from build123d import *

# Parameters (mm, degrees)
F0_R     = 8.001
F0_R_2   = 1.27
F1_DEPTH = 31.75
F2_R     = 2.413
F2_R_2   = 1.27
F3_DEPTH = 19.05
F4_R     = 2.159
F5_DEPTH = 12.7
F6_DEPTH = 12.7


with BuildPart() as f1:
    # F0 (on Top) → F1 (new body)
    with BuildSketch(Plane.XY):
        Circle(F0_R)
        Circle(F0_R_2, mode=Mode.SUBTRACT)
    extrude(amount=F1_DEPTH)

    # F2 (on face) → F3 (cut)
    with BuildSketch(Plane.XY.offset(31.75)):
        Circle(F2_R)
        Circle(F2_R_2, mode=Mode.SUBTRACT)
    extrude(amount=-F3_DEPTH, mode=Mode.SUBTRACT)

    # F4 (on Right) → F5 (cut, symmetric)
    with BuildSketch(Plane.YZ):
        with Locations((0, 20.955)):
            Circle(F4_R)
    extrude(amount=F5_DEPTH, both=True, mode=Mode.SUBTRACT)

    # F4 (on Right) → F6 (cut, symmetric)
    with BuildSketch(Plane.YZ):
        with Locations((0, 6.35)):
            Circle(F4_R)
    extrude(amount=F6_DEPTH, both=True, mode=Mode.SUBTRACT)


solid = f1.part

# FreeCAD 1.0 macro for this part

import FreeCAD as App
import Part
import Sketcher

V = App.Vector
Q = App.Units.Quantity

doc = App.newDocument("Part")
body = doc.addObject("PartDesign::Body", "Body")

# Sketch on XY plane
sketch1 = doc.addObject("Sketcher::SketchObject", "Sketch")
body.addObject(sketch1)
sketch1.AttachmentSupport = (doc.XY_Plane, [""])
sketch1.MapMode = "FlatFace"
sketch1.addGeometry([
    Part.Circle(V(0, 0, 0), V(0, 0, 1), 8),
    Part.Circle(V(0, 0, 0), V(0, 0, 1), 1.3),
], False)
sketch1.addConstraint([
    Sketcher.Constraint("Coincident", 0, 3, -1, 1),
    Sketcher.Constraint("Coincident", 1, 3, -1, 1),
    Sketcher.Constraint("Diameter", 1, Q("0.1 in")),
    Sketcher.Constraint("Diameter", 0, Q("0.63 in")),
])
pad1 = doc.addObject("PartDesign::Pad", "Pad")
body.addObject(pad1)
pad1.Profile = sketch1
pad1.Length = Q("1.25 in")

# Sketch on XY plane
sketch2 = doc.addObject("Sketcher::SketchObject", "Sketch001")
body.addObject(sketch2)
sketch2.AttachmentSupport = (doc.XY_Plane, [""])
sketch2.MapMode = "FlatFace"
sketch2.AttachmentOffset = App.Placement(V(0, 0, 1.25 * 25.4), App.Rotation())
sketch2.addGeometry([
    Part.Circle(V(0, 0, 0), V(0, 0, 1), 2.4),
    Part.Circle(V(0, 0, 0), V(0, 0, 1), 1.3),
], False)
sketch2.addConstraint([
    Sketcher.Constraint("Coincident", 0, 3, -1, 1),
    Sketcher.Constraint("Coincident", 1, 3, -1, 1),
    Sketcher.Constraint("Diameter", 1, Q("0.1 in")),
    Sketcher.Constraint("Diameter", 0, Q("0.19 in")),
])
pocket1 = doc.addObject("PartDesign::Pocket", "Pocket")
body.addObject(pocket1)
pocket1.Profile = sketch2
pocket1.Length = Q("0.75 in")

# Sketch on YZ plane
sketch3 = doc.addObject("Sketcher::SketchObject", "Sketch002")
body.addObject(sketch3)
sketch3.AttachmentSupport = (doc.YZ_Plane, [""])
sketch3.MapMode = "FlatFace"
sketch3.addGeometry(Part.Circle(V(0, 21, 0), V(0, 0, 1), 2.2), False)
sketch3.addConstraint([
    Sketcher.Constraint("PointOnObject", 0, 3, -2),
    Sketcher.Constraint("Diameter", 0, Q("0.17 in")),
    Sketcher.Constraint("DistanceY", -1, 1, 0, 3, Q("0.825 in")),
])
pocket2 = doc.addObject("PartDesign::Pocket", "Pocket001")
body.addObject(pocket2)
pocket2.Profile = sketch3
pocket2.Length = Q("1 in")
pocket2.Midplane = True

# Sketch on YZ plane
sketch4 = doc.addObject("Sketcher::SketchObject", "Sketch003")
body.addObject(sketch4)
sketch4.AttachmentSupport = (doc.YZ_Plane, [""])
sketch4.MapMode = "FlatFace"
sketch4.addGeometry(Part.Circle(V(0, 6.3, 0), V(0, 0, 1), 2.2), False)
sketch4.addConstraint([
    Sketcher.Constraint("PointOnObject", 0, 3, -2),
    Sketcher.Constraint("Diameter", 0, Q("0.17 in")),
    Sketcher.Constraint("DistanceY", -1, 1, 0, 3, Q("0.25 in")),
])
pocket3 = doc.addObject("PartDesign::Pocket", "Pocket002")
body.addObject(pocket3)
pocket3.Profile = sketch4
pocket3.Length = Q("1 in")
pocket3.Midplane = True

doc.recompute()
